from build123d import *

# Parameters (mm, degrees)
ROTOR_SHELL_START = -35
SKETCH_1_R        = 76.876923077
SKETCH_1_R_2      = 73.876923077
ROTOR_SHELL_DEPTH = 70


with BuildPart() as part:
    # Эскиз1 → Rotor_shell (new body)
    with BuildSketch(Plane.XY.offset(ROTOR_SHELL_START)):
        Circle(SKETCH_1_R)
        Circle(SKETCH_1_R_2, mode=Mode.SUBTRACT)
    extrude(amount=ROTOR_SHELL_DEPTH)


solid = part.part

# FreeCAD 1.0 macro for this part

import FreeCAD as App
import Part
import Sketcher

doc = App.newDocument("Part")
body = doc.addObject("PartDesign::Body", "Body")

# Sketch on XY plane
sketch1 = body.newObject("Sketcher::SketchObject", "Sketch")
sketch1.AttachmentSupport = (doc.getObject("XY_Plane"), [""])
sketch1.MapMode = "FlatFace"
sketch1.AttachmentOffset = App.Placement(App.Vector(0, 0, -35), App.Rotation())
sketch1.addGeometry([
    Part.Circle(App.Vector(0, 0, 0), App.Vector(0, 0, 1), 76.876923),
    Part.Circle(App.Vector(0, 0, 0), App.Vector(0, 0, 1), 73.876923),
], False)
sketch1.addConstraint([
    Sketcher.Constraint("Coincident", 0, 3, -1, 1),
    Sketcher.Constraint("Coincident", 1, 3, -1, 1),
    Sketcher.Constraint("Diameter", 0, 153.753846),
    Sketcher.Constraint("Diameter", 1, 147.753846),
])
pad1 = body.newObject("PartDesign::Pad", "Pad")
pad1.Profile = sketch1
pad1.Length = 70

doc.recompute()
